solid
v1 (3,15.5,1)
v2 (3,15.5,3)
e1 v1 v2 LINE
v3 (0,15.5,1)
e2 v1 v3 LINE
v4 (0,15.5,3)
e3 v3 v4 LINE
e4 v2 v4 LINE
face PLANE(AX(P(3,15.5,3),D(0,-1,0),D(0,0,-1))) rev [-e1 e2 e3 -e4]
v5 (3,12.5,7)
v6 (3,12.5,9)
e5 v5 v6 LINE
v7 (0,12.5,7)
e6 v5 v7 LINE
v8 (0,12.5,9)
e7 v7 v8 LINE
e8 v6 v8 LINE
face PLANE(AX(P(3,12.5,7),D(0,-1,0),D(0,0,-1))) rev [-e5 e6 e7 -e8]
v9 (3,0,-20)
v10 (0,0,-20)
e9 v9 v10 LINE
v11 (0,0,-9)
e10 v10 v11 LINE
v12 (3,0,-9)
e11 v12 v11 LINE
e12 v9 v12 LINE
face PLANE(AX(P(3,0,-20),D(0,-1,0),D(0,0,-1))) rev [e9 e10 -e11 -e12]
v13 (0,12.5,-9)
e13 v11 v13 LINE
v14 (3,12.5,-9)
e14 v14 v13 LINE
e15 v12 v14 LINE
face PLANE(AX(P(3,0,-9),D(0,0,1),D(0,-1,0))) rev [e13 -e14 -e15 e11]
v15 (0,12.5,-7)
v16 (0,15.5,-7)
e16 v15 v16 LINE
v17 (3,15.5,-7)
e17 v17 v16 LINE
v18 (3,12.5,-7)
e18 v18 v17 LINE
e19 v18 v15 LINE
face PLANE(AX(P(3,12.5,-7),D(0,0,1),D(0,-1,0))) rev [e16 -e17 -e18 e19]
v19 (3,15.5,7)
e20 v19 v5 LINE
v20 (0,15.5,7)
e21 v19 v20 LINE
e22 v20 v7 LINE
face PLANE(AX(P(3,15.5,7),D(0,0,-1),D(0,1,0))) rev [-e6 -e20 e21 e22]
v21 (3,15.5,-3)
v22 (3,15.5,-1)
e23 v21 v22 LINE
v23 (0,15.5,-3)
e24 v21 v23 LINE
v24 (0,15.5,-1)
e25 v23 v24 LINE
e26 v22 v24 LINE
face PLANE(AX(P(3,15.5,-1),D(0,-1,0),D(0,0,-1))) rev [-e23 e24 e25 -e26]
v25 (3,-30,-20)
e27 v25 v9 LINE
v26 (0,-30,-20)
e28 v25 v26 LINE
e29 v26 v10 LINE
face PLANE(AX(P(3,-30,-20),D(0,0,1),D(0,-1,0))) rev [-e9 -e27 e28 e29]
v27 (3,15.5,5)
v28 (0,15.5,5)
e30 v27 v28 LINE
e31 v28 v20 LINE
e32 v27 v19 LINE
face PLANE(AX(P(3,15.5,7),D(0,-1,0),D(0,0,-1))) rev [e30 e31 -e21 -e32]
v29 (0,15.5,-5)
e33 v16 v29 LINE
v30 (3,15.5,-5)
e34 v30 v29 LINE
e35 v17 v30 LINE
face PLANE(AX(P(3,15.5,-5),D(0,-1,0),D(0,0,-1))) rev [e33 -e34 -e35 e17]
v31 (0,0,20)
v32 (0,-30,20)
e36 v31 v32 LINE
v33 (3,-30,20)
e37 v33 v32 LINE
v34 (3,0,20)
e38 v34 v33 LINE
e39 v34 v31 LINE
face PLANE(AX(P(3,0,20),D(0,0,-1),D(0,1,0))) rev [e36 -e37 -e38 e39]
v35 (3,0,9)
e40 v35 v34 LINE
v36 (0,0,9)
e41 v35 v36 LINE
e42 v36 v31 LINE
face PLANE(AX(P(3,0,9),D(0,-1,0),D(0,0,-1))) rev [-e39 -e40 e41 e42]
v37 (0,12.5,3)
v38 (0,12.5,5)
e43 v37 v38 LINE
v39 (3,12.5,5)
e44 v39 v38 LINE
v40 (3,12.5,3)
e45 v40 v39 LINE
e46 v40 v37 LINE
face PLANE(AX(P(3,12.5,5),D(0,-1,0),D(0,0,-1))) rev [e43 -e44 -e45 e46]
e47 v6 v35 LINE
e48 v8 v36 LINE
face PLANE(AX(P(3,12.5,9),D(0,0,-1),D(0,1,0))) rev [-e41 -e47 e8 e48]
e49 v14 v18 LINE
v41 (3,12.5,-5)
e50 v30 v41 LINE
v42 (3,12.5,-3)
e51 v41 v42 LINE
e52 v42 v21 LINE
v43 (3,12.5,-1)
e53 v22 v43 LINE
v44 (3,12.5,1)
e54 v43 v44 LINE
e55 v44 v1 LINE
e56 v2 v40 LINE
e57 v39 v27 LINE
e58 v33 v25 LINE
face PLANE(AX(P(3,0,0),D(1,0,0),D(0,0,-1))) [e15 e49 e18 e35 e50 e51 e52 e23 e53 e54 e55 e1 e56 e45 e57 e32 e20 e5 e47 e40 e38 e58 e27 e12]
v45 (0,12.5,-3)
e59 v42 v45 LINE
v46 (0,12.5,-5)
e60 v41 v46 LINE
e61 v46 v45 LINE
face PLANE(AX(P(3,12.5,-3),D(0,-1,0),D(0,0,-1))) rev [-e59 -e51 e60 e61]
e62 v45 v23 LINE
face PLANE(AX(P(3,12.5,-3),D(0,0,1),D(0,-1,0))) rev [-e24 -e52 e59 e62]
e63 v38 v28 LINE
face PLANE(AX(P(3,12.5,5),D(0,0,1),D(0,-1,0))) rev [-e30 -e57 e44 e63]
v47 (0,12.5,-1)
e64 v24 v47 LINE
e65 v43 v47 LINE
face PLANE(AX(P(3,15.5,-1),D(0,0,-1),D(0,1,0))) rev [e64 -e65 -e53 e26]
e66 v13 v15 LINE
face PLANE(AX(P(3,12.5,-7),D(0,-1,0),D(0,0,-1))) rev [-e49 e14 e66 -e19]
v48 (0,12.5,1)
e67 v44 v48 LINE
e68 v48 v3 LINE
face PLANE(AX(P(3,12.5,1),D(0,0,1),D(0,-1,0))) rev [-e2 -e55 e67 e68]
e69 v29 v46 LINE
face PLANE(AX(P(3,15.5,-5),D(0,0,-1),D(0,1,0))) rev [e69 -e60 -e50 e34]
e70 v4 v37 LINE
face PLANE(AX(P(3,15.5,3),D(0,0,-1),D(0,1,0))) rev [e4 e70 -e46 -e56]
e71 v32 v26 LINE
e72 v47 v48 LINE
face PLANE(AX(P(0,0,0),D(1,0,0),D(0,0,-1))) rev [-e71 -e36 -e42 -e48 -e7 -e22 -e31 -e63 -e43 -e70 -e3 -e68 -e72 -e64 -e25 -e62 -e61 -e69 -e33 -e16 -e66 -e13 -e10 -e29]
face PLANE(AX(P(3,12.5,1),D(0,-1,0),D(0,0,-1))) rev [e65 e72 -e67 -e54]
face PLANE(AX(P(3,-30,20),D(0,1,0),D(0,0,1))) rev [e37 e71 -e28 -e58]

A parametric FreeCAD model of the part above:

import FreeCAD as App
import Part
import Sketcher
from FreeCAD import Vector


def add_polygon(sketch, points):
    """Adds a closed chain of lines whose ends are joined by coincident constraints."""
    first, n = sketch.GeometryCount, len(points)
    for a, b in zip(points, points[1:] + points[:1]):
        sketch.addGeometry(Part.LineSegment(App.Vector(*a, 0), App.Vector(*b, 0)), False)
    for i in range(n):
        sketch.addConstraint(Sketcher.Constraint("Coincident", first + i, 2, first + (i + 1) % n, 1))

doc = App.newDocument("Part")
body = doc.addObject("PartDesign::Body", "Body")

sketch1 = doc.addObject("Sketcher::SketchObject", "Sketch")
body.addObject(sketch1)
sketch1.AttachmentSupport = (doc.YZ_Plane, [""])
sketch1.MapMode = "FlatFace"
add_polygon(sketch1, [(12.5, 9), (0, 9), (0, 20), (-30, 20), (-30, -20), (0, -20), (0, -9), (12.5, -9), (12.5, -7), (15.5, -7), (15.5, -5), (12.5, -5), (12.5, -3), (15.5, -3), (15.5, -1), (12.5, -1), (12.5, 1), (15.5, 1), (15.5, 3), (12.5, 3), (12.5, 5), (15.5, 5), (15.5, 7), (12.5, 7)])
sketch1.addConstraint(Sketcher.Constraint("Horizontal", 0))
sketch1.addConstraint(Sketcher.Constraint("Vertical", 1))
sketch1.addConstraint(Sketcher.Constraint("Horizontal", 2))
sketch1.addConstraint(Sketcher.Constraint("Vertical", 3))
sketch1.addConstraint(Sketcher.Constraint("Horizontal", 4))
sketch1.addConstraint(Sketcher.Constraint("Vertical", 5))
sketch1.addConstraint(Sketcher.Constraint("Horizontal", 6))
sketch1.addConstraint(Sketcher.Constraint("Vertical", 7))
sketch1.addConstraint(Sketcher.Constraint("Horizontal", 8))
sketch1.addConstraint(Sketcher.Constraint("Vertical", 9))
sketch1.addConstraint(Sketcher.Constraint("Horizontal", 10))
sketch1.addConstraint(Sketcher.Constraint("Vertical", 11))
sketch1.addConstraint(Sketcher.Constraint("Horizontal", 12))
sketch1.addConstraint(Sketcher.Constraint("Vertical", 13))
sketch1.addConstraint(Sketcher.Constraint("Horizontal", 14))
sketch1.addConstraint(Sketcher.Constraint("Vertical", 15))
sketch1.addConstraint(Sketcher.Constraint("Horizontal", 16))
sketch1.addConstraint(Sketcher.Constraint("Vertical", 17))
sketch1.addConstraint(Sketcher.Constraint("Horizontal", 18))
sketch1.addConstraint(Sketcher.Constraint("Vertical", 19))
sketch1.addConstraint(Sketcher.Constraint("Horizontal", 20))
sketch1.addConstraint(Sketcher.Constraint("Vertical", 21))
sketch1.addConstraint(Sketcher.Constraint("Horizontal", 22))
sketch1.addConstraint(Sketcher.Constraint("Vertical", 23))
sketch1.addConstraint(Sketcher.Constraint("Symmetric", 1, 2, 4, 2, -1, 1))
sketch1.addConstraint(Sketcher.Constraint("Symmetric", 0, 2, 5, 2, -1))
sketch1.addConstraint(Sketcher.Constraint("Symmetric", 13, 2, 16, 2, -1))
sketch1.addConstraint(Sketcher.Constraint("Symmetric", 11, 2, 18, 2, -1))
sketch1.addConstraint(Sketcher.Constraint("Symmetric", 9, 2, 20, 2, -1))
sketch1.addConstraint(Sketcher.Constraint("Symmetric", 7, 2, 22, 2, -1))
sketch1.addConstraint(Sketcher.Constraint("Vertical", 7, 2, 10, 2))
sketch1.addConstraint(Sketcher.Constraint("Vertical", 9, 2, 12, 2))
sketch1.addConstraint(Sketcher.Constraint("Vertical", 11, 2, 14, 2))
sketch1.addConstraint(Sketcher.Constraint("Equal", 7, 9))
sketch1.addConstraint(Sketcher.Constraint("Equal", 9, 11))
sketch1.addConstraint(Sketcher.Constraint("Equal", 11, 13))
sketch1.addConstraint(Sketcher.Constraint("Equal", 13, 15))
sketch1.addConstraint(Sketcher.Constraint("DistanceX", 2, 2, 2, 1, 30.0))
sketch1.addConstraint(Sketcher.Constraint("DistanceX", 8, 1, 8, 2, 3.0))
sketch1.addConstraint(Sketcher.Constraint("DistanceY", 1, 1, 1, 2, 11.0))
sketch1.addConstraint(Sketcher.Constraint("DistanceY", 3, 2, 3, 1, 40.0))
sketch1.addConstraint(Sketcher.Constraint("DistanceX", 0, 2, 0, 1, 12.5))
pad1 = doc.addObject("PartDesign::Pad", "Pad")
body.addObject(pad1)
pad1.Profile = sketch1
pad1.Length = 3

doc.recompute()
